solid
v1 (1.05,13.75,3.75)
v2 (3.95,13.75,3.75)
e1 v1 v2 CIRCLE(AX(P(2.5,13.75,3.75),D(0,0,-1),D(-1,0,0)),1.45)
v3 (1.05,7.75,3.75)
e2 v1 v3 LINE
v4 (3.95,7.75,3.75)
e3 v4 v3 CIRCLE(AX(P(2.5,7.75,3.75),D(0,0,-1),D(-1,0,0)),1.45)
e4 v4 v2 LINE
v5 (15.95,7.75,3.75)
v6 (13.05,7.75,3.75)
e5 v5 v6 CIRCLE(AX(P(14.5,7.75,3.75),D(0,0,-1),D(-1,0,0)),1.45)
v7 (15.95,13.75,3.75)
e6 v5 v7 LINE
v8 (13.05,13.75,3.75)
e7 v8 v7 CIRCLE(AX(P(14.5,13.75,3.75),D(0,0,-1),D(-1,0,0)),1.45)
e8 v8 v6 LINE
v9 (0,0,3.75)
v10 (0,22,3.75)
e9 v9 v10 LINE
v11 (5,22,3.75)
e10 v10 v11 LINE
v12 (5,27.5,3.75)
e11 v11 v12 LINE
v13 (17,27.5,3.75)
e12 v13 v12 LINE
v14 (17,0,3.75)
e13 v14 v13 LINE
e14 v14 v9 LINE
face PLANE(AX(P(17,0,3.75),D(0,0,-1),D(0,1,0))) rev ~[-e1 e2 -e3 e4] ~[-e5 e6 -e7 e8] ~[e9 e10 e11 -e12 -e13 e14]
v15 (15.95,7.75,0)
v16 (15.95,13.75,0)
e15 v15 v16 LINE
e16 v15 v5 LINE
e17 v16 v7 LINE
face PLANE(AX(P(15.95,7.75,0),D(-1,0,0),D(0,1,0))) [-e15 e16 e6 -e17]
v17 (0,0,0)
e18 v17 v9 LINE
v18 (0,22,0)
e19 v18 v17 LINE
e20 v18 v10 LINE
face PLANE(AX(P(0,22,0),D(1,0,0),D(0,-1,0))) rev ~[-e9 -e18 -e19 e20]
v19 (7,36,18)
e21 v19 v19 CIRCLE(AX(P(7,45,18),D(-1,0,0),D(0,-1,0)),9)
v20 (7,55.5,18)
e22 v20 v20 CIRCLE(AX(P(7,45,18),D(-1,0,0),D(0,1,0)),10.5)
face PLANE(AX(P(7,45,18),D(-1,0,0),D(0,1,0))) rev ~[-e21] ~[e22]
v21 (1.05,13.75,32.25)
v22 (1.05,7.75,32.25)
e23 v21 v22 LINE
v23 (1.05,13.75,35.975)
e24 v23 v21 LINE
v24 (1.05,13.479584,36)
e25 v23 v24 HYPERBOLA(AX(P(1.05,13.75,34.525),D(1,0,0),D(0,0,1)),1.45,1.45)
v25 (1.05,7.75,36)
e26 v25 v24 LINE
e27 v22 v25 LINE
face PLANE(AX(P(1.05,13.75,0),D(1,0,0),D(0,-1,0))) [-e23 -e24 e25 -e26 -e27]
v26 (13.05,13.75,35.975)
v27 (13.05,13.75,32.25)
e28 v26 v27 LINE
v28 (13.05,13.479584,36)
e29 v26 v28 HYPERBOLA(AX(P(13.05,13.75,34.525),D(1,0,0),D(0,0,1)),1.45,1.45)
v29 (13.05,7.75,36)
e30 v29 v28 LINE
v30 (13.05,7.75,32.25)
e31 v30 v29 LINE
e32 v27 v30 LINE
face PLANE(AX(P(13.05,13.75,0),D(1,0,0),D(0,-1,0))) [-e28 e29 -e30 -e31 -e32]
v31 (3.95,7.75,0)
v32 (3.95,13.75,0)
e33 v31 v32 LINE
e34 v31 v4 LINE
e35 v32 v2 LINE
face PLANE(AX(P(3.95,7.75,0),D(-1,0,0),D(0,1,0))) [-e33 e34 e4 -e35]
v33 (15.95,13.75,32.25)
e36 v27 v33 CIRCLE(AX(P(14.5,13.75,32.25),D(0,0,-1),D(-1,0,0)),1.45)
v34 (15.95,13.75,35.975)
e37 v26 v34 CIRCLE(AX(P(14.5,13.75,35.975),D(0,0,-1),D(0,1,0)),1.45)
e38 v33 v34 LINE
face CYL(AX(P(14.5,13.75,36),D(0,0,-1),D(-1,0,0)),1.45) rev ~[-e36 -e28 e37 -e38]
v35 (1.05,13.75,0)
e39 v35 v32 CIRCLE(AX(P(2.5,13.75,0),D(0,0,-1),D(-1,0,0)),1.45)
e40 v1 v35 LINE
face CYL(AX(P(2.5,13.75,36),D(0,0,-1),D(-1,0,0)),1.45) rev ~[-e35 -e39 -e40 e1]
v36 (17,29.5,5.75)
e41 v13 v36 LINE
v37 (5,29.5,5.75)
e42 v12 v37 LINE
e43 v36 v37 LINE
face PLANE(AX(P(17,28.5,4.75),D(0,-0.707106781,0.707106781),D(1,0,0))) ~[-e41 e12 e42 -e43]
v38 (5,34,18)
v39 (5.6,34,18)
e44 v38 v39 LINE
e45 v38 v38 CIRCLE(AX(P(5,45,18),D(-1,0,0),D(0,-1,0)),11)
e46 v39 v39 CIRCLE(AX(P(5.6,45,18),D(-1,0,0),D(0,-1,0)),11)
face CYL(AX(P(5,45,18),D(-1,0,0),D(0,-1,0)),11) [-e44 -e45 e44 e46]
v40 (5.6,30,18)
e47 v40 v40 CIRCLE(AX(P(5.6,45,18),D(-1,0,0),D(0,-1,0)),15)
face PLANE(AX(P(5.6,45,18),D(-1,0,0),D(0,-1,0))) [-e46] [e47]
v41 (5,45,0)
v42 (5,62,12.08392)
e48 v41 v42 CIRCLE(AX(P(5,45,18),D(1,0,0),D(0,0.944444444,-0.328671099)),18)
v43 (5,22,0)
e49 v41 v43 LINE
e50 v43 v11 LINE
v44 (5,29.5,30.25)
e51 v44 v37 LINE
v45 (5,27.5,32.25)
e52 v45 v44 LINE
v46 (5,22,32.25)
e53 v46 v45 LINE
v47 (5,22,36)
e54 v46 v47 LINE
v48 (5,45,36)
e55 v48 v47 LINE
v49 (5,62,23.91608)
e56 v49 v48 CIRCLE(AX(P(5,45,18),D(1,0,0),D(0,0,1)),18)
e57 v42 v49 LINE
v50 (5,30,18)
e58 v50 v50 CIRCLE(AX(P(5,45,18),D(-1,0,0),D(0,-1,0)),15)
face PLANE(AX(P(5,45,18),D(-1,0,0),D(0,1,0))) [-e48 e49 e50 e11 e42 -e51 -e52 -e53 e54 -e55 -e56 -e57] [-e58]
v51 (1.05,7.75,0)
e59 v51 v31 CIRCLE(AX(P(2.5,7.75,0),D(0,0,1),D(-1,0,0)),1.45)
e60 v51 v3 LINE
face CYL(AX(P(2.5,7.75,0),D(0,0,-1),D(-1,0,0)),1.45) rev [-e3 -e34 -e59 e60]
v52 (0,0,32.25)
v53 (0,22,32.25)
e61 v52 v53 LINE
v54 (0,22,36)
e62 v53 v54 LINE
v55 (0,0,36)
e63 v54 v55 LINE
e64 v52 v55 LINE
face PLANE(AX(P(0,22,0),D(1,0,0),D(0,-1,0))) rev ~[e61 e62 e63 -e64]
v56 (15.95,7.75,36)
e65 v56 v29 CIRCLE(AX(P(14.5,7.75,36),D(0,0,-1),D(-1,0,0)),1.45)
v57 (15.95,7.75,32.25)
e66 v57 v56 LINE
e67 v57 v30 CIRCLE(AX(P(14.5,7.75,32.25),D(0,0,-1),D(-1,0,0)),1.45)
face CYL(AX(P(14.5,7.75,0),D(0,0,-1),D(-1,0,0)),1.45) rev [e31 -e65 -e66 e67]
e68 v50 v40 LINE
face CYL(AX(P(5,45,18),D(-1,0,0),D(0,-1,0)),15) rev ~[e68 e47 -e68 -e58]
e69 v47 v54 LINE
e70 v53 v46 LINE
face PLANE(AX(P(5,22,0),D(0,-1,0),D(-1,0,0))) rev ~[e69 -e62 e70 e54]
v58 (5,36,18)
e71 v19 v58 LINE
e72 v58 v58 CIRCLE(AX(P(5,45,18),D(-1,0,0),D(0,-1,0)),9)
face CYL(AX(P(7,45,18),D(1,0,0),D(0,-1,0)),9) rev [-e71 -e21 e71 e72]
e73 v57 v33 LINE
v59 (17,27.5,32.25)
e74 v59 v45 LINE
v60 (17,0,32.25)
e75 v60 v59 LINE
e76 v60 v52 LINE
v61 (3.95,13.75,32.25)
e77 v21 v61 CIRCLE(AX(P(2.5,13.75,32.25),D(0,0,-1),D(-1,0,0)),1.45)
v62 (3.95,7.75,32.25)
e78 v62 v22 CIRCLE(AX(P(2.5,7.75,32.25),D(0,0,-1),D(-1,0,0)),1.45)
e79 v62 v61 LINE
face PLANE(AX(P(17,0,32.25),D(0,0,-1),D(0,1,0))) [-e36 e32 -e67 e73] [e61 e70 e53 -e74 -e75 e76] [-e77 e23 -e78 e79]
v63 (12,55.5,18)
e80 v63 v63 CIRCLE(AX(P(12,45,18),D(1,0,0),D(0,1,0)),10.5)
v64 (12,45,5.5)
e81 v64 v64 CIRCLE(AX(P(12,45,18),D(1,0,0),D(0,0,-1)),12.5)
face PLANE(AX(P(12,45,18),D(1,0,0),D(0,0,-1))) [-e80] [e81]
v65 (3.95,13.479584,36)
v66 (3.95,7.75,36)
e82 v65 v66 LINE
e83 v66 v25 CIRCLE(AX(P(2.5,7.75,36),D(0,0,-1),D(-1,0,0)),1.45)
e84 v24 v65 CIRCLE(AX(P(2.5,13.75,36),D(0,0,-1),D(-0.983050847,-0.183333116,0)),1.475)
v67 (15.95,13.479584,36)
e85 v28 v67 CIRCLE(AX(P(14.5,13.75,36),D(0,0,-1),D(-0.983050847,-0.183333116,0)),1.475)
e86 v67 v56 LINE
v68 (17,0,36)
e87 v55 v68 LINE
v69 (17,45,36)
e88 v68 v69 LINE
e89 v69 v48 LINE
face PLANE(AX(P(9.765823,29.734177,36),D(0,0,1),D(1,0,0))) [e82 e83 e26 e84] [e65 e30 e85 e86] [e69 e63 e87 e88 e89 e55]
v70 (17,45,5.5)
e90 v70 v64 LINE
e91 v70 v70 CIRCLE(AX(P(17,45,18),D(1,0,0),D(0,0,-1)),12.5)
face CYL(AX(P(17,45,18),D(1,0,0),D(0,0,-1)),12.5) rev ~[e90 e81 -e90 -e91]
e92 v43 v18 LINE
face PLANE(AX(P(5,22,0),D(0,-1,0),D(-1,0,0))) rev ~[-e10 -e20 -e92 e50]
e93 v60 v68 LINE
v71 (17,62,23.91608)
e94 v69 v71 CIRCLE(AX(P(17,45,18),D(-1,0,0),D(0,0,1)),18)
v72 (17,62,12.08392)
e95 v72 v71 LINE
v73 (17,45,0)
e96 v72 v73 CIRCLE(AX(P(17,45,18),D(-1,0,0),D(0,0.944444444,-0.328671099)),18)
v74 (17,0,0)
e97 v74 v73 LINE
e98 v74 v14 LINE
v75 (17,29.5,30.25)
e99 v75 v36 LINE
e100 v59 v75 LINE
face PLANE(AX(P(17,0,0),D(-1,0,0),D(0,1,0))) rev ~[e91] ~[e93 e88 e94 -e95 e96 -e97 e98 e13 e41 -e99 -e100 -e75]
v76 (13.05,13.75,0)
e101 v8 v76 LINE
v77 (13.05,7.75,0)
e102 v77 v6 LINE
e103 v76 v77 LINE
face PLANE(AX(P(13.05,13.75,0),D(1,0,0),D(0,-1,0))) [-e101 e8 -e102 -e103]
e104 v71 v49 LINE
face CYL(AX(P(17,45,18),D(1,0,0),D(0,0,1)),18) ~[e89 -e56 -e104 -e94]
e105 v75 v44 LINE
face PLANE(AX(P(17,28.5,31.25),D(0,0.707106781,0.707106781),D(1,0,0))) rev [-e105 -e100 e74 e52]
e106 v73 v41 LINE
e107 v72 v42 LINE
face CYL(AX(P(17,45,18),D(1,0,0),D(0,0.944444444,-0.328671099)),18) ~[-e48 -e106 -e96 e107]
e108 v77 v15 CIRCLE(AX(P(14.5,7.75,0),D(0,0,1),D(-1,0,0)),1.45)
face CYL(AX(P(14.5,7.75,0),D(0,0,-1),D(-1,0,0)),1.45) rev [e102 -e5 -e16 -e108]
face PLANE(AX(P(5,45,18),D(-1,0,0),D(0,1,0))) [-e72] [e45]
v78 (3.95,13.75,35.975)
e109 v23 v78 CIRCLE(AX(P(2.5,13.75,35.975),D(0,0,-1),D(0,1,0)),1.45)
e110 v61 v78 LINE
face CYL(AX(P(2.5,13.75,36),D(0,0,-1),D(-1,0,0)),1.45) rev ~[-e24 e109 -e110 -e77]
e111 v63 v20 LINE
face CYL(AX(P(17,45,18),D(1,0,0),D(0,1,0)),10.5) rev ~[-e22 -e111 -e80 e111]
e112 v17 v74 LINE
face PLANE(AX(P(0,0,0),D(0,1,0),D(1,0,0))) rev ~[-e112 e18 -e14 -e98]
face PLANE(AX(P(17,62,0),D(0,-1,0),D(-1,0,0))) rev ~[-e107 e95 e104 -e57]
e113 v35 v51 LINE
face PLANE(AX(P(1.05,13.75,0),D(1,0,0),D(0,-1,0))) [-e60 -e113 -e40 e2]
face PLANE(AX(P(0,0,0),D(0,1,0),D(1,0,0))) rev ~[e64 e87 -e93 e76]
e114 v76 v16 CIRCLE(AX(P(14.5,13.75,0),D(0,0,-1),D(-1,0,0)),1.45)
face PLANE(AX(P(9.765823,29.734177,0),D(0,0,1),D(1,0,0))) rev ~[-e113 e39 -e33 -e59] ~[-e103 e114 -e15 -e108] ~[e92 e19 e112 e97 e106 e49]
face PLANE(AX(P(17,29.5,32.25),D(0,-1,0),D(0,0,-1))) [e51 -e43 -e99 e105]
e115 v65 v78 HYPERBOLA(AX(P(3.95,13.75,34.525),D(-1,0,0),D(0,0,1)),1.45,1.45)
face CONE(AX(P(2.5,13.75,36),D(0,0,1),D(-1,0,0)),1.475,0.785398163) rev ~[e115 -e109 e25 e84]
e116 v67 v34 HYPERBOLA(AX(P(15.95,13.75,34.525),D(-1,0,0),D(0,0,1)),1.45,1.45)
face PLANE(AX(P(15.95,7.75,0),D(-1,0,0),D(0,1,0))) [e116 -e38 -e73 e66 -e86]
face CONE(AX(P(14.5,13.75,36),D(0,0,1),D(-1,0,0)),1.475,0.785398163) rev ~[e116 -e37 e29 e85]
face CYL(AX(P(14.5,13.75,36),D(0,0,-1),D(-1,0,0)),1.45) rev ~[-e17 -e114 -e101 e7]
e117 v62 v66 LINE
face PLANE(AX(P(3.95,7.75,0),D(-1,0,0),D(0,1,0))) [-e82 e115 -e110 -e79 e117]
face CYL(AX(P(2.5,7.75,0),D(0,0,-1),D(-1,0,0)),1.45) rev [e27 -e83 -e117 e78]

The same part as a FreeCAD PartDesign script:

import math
import FreeCAD as App
import Part
import Sketcher


def edges_at(feature, points):
    """Names of the edges that pass closest to the given points."""
    edges = feature.Shape.Edges
    near = lambda p: min(range(len(edges)), key=lambda i: edges[i].distToShape(Part.Vertex(*p))[0])
    return sorted({f"Edge{near(p) + 1}" for p in points})

doc = App.newDocument("Part")
body = doc.addObject("PartDesign::Body", "Body")

# Sketch on XY plane
sketch1 = body.newObject("Sketcher::SketchObject", "Sketch")
sketch1.AttachmentSupport = (doc.getObject("XY_Plane"), [""])
sketch1.MapMode = "FlatFace"
sketch1.addGeometry([
    Part.LineSegment(App.Vector(0, 0, 0), App.Vector(17, 0, 0)),  # 0
    Part.LineSegment(App.Vector(17, 0, 0), App.Vector(17, 62, 0)),  # 1
    Part.LineSegment(App.Vector(17, 62, 0), App.Vector(5, 62, 0)),  # 2
    Part.LineSegment(App.Vector(5, 62, 0), App.Vector(5, 22, 0)),  # 3
    Part.LineSegment(App.Vector(5, 22, 0), App.Vector(0, 22, 0)),  # 4
    Part.LineSegment(App.Vector(0, 22, 0), App.Vector(0, 0, 0)),  # 5
], False)
sketch1.addConstraint([
    Sketcher.Constraint("Coincident", 0, 2, 1, 1),
    Sketcher.Constraint("Coincident", 1, 2, 2, 1),
    Sketcher.Constraint("Coincident", 2, 2, 3, 1),
    Sketcher.Constraint("Coincident", 3, 2, 4, 1),
    Sketcher.Constraint("Coincident", 4, 2, 5, 1),
    Sketcher.Constraint("Coincident", 5, 2, 0, 1),
    Sketcher.Constraint("Horizontal", 0),
    Sketcher.Constraint("Vertical", 1),
    Sketcher.Constraint("Horizontal", 2),
    Sketcher.Constraint("Vertical", 3),
    Sketcher.Constraint("Horizontal", 4),
    Sketcher.Constraint("Vertical", 5),
    Sketcher.Constraint("Coincident", 5, 2, -1, 1),
    Sketcher.Constraint("DistanceX", 0, 1, 0, 2, 17.0),
    Sketcher.Constraint("DistanceX", 2, 2, 2, 1, 12.0),
    Sketcher.Constraint("DistanceY", 1, 1, 1, 2, 62.0),
    Sketcher.Constraint("DistanceY", 3, 2, 3, 1, 40.0),
])
pad1 = body.newObject("PartDesign::Pad", "Pad")
pad1.Profile = sketch1
pad1.Length = 36

# Sketch on YZ plane
sketch2 = body.newObject("Sketcher::SketchObject", "Sketch001")
sketch2.AttachmentSupport = (doc.getObject("YZ_Plane"), [""])
sketch2.MapMode = "FlatFace"
sketch2.AttachmentOffset = App.Placement(App.Vector(0, 0, 17), App.Rotation())
sketch2.addGeometry(Part.Circle(App.Vector(45, 18, 0), App.Vector(0, 0, 1), 10), False)
sketch2.addConstraint([
    Sketcher.Constraint("Diameter", 0, 21.0),
    Sketcher.Constraint("DistanceX", -1, 1, 0, 3, 45.0),
    Sketcher.Constraint("DistanceY", -1, 1, 0, 3, 18.0),
])
pocket1 = body.newObject("PartDesign::Pocket", "Pocket")
pocket1.Profile = sketch2
pocket1.Type = "ThroughAll"

# Sketch on YZ plane
sketch3 = body.newObject("Sketcher::SketchObject", "Sketch002")
sketch3.AttachmentSupport = (doc.getObject("YZ_Plane"), [""])
sketch3.MapMode = "FlatFace"
sketch3.AttachmentOffset = App.Placement(App.Vector(0, 0, 17), App.Rotation())
sketch3.addGeometry([
    Part.LineSegment(App.Vector(30, 32, 0), App.Vector(0, 32, 0)),
    Part.LineSegment(App.Vector(0, 32, 0), App.Vector(0, 4, 0)),
    Part.LineSegment(App.Vector(0, 4, 0), App.Vector(30, 4, 0)),
    Part.LineSegment(App.Vector(30, 4, 0), App.Vector(30, 32, 0)),
], False)
sketch3.addConstraint([
    Sketcher.Constraint("Coincident", 0, 2, 1, 1),
    Sketcher.Constraint("Coincident", 1, 2, 2, 1),
    Sketcher.Constraint("Coincident", 2, 2, 3, 1),
    Sketcher.Constraint("Coincident", 3, 2, 0, 1),
    Sketcher.Constraint("Horizontal", 0),
    Sketcher.Constraint("Vertical", 1),
    Sketcher.Constraint("Horizontal", 2),
    Sketcher.Constraint("Vertical", 3),
    Sketcher.Constraint("PointOnObject", 0, 2, -2),
    Sketcher.Constraint("DistanceX", 0, 2, 0, 1, 29.5),
    Sketcher.Constraint("DistanceY", 1, 2, 1, 1, 28.5),
    Sketcher.Constraint("DistanceY", -1, 1, 0, 2, 32.25),
])
pocket2 = body.newObject("PartDesign::Pocket", "Pocket001")
pocket2.Profile = sketch3
pocket2.Type = "ThroughAll"
doc.recompute()

chamfer = body.newObject("PartDesign::Chamfer", "Chamfer")
chamfer.Base = (pocket2, edges_at(pocket2, [(11, 29.5, 32.25), (11, 29.5, 3.75)]))
chamfer.Size = 2

# Sketch on YZ plane
sketch4 = body.newObject("Sketcher::SketchObject", "Sketch003")
sketch4.AttachmentSupport = (doc.getObject("YZ_Plane"), [""])
sketch4.MapMode = "FlatFace"
sketch4.AttachmentOffset = App.Placement(App.Vector(0, 0, 7), App.Rotation())
sketch4.addGeometry([
    Part.Circle(App.Vector(45, 18, 0), App.Vector(0, 0, 1), 10),
    Part.Circle(App.Vector(45, 18, 0), App.Vector(0, 0, 1), 9),
], False)
sketch4.addConstraint([
    Sketcher.Constraint("Coincident", 1, 3, 0, 3),
    Sketcher.Constraint("Diameter", 0, 21.0),
    Sketcher.Constraint("Diameter", 1, 18.0),
    Sketcher.Constraint("DistanceX", -1, 1, 0, 3, 45.0),
    Sketcher.Constraint("DistanceY", -1, 1, 0, 3, 18.0),
])
pad2 = body.newObject("PartDesign::Pad", "Pad001")
pad2.Profile = sketch4
pad2.Length = 2
pad2.Reversed = True

# Sketch on YZ plane
sketch5 = body.newObject("Sketcher::SketchObject", "Sketch004")
sketch5.AttachmentSupport = (doc.getObject("YZ_Plane"), [""])
sketch5.MapMode = "FlatFace"
sketch5.AttachmentOffset = App.Placement(App.Vector(0, 0, 5), App.Rotation())
sketch5.addGeometry([
    Part.Circle(App.Vector(45, 18, 0), App.Vector(0, 0, 1), 15),
    Part.Circle(App.Vector(45, 18, 0), App.Vector(0, 0, 1), 11),
], False)
sketch5.addConstraint([
    Sketcher.Constraint("Coincident", 1, 3, 0, 3),
    Sketcher.Constraint("Diameter", 0, 30.0),
    Sketcher.Constraint("Diameter", 1, 22.0),
    Sketcher.Constraint("DistanceX", -1, 1, 0, 3, 45.0),
    Sketcher.Constraint("DistanceY", -1, 1, 0, 3, 18.0),
])
pocket3 = body.newObject("PartDesign::Pocket", "Pocket002")
pocket3.Profile = sketch5
pocket3.Length = 0.6
pocket3.Reversed = True

# Sketch on YZ plane
sketch6 = body.newObject("Sketcher::SketchObject", "Sketch005")
sketch6.AttachmentSupport = (doc.getObject("YZ_Plane"), [""])
sketch6.MapMode = "FlatFace"
sketch6.AttachmentOffset = App.Placement(App.Vector(0, 0, 17), App.Rotation())
sketch6.addGeometry(Part.Circle(App.Vector(45, 18, 0), App.Vector(0, 0, 1), 12), False)
sketch6.addConstraint([
    Sketcher.Constraint("Diameter", 0, 25.0),
    Sketcher.Constraint("DistanceX", -1, 1, 0, 3, 45.0),
    Sketcher.Constraint("DistanceY", -1, 1, 0, 3, 18.0),
])
pocket4 = body.newObject("PartDesign::Pocket", "Pocket003")
pocket4.Profile = sketch6
pocket4.Length = 5

# Sketch on XY plane
sketch7 = body.newObject("Sketcher::SketchObject", "Sketch006")
sketch7.AttachmentSupport = (doc.getObject("XY_Plane"), [""])
sketch7.MapMode = "FlatFace"
sketch7.AttachmentOffset = App.Placement(App.Vector(0, 0, 36), App.Rotation())
sketch7.addGeometry([
    Part.Circle(App.Vector(14.5, 13.8, 0), App.Vector(0, 0, 1), 1.4),
    Part.Circle(App.Vector(2.5, 13.8, 0), App.Vector(0, 0, 1), 1.4),
], False)
sketch7.addConstraint([
    Sketcher.Constraint("Equal", 0, 1),
    Sketcher.Constraint("Horizontal", 0, 3, 1, 3),
    Sketcher.Constraint("Diameter", 0, 2.9),
    Sketcher.Constraint("DistanceX", 1, 3, 0, 3, 12.0),
    Sketcher.Constraint("DistanceX", -1, 1, 0, 3, 14.5),
    Sketcher.Constraint("DistanceY", -1, 1, 0, 3, 13.75),
])
doc.recompute()
hole = body.newObject("PartDesign::Hole", "Hole")
hole.Profile = sketch7
hole.ThreadType = "None"
hole.Diameter = 2.9
hole.DepthType = "ThroughAll"
hole.HoleCutType = "Countersink"
hole.HoleCutDiameter = 2.95
hole.HoleCutCountersinkAngle = 90

# Sketch on XY plane
sketch8 = body.newObject("Sketcher::SketchObject", "Sketch007")
sketch8.AttachmentSupport = (doc.getObject("XY_Plane"), [""])
sketch8.MapMode = "FlatFace"
sketch8.addGeometry([
    Part.LineSegment(App.Vector(13.1, 7.8, 0), App.Vector(13.1, 13.8, 0)),  # 0
    Part.ArcOfCircle(Part.Circle(App.Vector(14.5, 13.8, 0), App.Vector(0, 0, 1), 1.4), math.radians(0), math.radians(180)),  # 1
    Part.LineSegment(App.Vector(15.9, 13.8, 0), App.Vector(15.9, 7.8, 0)),  # 2
    Part.ArcOfCircle(Part.Circle(App.Vector(14.5, 7.8, 0), App.Vector(0, 0, 1), 1.4), math.radians(180), math.radians(360)),  # 3
    Part.LineSegment(App.Vector(1.1, 7.8, 0), App.Vector(1.1, 13.8, 0)),  # 4
    Part.ArcOfCircle(Part.Circle(App.Vector(2.5, 13.8, 0), App.Vector(0, 0, 1), 1.4), math.radians(0), math.radians(180)),  # 5
    Part.LineSegment(App.Vector(4, 13.8, 0), App.Vector(4, 7.8, 0)),  # 6
    Part.ArcOfCircle(Part.Circle(App.Vector(2.5, 7.8, 0), App.Vector(0, 0, 1), 1.4), math.radians(180), math.radians(360)),  # 7
], False)
sketch8.addConstraint([
    Sketcher.Constraint("Tangent", 0, 2, 1, 2),
    Sketcher.Constraint("Tangent", 1, 1, 2, 1),
    Sketcher.Constraint("Tangent", 2, 2, 3, 2),
    Sketcher.Constraint("Tangent", 3, 1, 0, 1),
    Sketcher.Constraint("Tangent", 4, 2, 5, 2),
    Sketcher.Constraint("Tangent", 5, 1, 6, 1),
    Sketcher.Constraint("Tangent", 6, 2, 7, 2),
    Sketcher.Constraint("Tangent", 7, 1, 4, 1),
    Sketcher.Constraint("Vertical", 0),
    Sketcher.Constraint("Vertical", 2),
    Sketcher.Constraint("Vertical", 4),
    Sketcher.Constraint("Vertical", 6),
    Sketcher.Constraint("Equal", 3, 5),
    Sketcher.Constraint("Horizontal", 1, 3, 5, 3),
    Sketcher.Constraint("Horizontal", 3, 3, 7, 3),
    Sketcher.Constraint("DistanceY", 0, 1, 0, 2, 6.0),
    Sketcher.Constraint("Radius", 1, 1.45),
    Sketcher.Constraint("DistanceX", 5, 3, 1, 3, 12.0),
    Sketcher.Constraint("DistanceX", -1, 1, 1, 3, 14.5),
    Sketcher.Constraint("DistanceY", -1, 1, 1, 3, 13.75),
])
pocket5 = body.newObject("PartDesign::Pocket", "Pocket004")
pocket5.Profile = sketch8
pocket5.Type = "ThroughAll"
pocket5.Reversed = True

# Sketch on YZ plane
sketch9 = body.newObject("Sketcher::SketchObject", "Sketch008")
sketch9.AttachmentSupport = (doc.getObject("YZ_Plane"), [""])
sketch9.MapMode = "FlatFace"
sketch9.AttachmentOffset = App.Placement(App.Vector(0, 0, 17), App.Rotation())
sketch9.addGeometry([
    Part.LineSegment(App.Vector(62, 24, 0), App.Vector(62, 36, 0)),  # 0
    Part.LineSegment(App.Vector(62, 36, 0), App.Vector(45, 36, 0)),  # 1
    Part.ArcOfCircle(Part.Circle(App.Vector(45, 18, 0), App.Vector(0, 0, 1), 18), math.radians(19), math.radians(90)),  # 2
    Part.LineSegment(App.Vector(62, 0, 0), App.Vector(62, 12, 0)),  # 3
    Part.ArcOfCircle(Part.Circle(App.Vector(45, 18, 0), App.Vector(0, 0, 1), 18), math.radians(-90), math.radians(-19)),  # 4
    Part.LineSegment(App.Vector(45, 0, 0), App.Vector(62, 0, 0)),  # 5
], False)
sketch9.addConstraint([
    Sketcher.Constraint("Coincident", 0, 2, 1, 1),
    Sketcher.Constraint("Tangent", 1, 2, 2, 2),
    Sketcher.Constraint("Coincident", 2, 1, 0, 1),
    Sketcher.Constraint("Coincident", 3, 2, 4, 2),
    Sketcher.Constraint("Tangent", 4, 1, 5, 1),
    Sketcher.Constraint("Coincident", 5, 2, 3, 1),
    Sketcher.Constraint("Vertical", 0),
    Sketcher.Constraint("Horizontal", 1),
    Sketcher.Constraint("Vertical", 3),
    Sketcher.Constraint("Horizontal", 5),
    Sketcher.Constraint("Coincident", 4, 3, 2, 3),
    Sketcher.Constraint("Equal", 2, 4),
    Sketcher.Constraint("PointOnObject", 4, 1, -1),
    Sketcher.Constraint("Vertical", 2, 1, 3, 2),
    Sketcher.Constraint("Radius", 2, 18.0),
    Sketcher.Constraint("DistanceX", 1, 2, 1, 1, 17.0),
    Sketcher.Constraint("DistanceX", -1, 1, 2, 3, 45.0),
])
pocket6 = body.newObject("PartDesign::Pocket", "Pocket005")
pocket6.Profile = sketch9
pocket6.Type = "ThroughAll"

doc.recompute()
